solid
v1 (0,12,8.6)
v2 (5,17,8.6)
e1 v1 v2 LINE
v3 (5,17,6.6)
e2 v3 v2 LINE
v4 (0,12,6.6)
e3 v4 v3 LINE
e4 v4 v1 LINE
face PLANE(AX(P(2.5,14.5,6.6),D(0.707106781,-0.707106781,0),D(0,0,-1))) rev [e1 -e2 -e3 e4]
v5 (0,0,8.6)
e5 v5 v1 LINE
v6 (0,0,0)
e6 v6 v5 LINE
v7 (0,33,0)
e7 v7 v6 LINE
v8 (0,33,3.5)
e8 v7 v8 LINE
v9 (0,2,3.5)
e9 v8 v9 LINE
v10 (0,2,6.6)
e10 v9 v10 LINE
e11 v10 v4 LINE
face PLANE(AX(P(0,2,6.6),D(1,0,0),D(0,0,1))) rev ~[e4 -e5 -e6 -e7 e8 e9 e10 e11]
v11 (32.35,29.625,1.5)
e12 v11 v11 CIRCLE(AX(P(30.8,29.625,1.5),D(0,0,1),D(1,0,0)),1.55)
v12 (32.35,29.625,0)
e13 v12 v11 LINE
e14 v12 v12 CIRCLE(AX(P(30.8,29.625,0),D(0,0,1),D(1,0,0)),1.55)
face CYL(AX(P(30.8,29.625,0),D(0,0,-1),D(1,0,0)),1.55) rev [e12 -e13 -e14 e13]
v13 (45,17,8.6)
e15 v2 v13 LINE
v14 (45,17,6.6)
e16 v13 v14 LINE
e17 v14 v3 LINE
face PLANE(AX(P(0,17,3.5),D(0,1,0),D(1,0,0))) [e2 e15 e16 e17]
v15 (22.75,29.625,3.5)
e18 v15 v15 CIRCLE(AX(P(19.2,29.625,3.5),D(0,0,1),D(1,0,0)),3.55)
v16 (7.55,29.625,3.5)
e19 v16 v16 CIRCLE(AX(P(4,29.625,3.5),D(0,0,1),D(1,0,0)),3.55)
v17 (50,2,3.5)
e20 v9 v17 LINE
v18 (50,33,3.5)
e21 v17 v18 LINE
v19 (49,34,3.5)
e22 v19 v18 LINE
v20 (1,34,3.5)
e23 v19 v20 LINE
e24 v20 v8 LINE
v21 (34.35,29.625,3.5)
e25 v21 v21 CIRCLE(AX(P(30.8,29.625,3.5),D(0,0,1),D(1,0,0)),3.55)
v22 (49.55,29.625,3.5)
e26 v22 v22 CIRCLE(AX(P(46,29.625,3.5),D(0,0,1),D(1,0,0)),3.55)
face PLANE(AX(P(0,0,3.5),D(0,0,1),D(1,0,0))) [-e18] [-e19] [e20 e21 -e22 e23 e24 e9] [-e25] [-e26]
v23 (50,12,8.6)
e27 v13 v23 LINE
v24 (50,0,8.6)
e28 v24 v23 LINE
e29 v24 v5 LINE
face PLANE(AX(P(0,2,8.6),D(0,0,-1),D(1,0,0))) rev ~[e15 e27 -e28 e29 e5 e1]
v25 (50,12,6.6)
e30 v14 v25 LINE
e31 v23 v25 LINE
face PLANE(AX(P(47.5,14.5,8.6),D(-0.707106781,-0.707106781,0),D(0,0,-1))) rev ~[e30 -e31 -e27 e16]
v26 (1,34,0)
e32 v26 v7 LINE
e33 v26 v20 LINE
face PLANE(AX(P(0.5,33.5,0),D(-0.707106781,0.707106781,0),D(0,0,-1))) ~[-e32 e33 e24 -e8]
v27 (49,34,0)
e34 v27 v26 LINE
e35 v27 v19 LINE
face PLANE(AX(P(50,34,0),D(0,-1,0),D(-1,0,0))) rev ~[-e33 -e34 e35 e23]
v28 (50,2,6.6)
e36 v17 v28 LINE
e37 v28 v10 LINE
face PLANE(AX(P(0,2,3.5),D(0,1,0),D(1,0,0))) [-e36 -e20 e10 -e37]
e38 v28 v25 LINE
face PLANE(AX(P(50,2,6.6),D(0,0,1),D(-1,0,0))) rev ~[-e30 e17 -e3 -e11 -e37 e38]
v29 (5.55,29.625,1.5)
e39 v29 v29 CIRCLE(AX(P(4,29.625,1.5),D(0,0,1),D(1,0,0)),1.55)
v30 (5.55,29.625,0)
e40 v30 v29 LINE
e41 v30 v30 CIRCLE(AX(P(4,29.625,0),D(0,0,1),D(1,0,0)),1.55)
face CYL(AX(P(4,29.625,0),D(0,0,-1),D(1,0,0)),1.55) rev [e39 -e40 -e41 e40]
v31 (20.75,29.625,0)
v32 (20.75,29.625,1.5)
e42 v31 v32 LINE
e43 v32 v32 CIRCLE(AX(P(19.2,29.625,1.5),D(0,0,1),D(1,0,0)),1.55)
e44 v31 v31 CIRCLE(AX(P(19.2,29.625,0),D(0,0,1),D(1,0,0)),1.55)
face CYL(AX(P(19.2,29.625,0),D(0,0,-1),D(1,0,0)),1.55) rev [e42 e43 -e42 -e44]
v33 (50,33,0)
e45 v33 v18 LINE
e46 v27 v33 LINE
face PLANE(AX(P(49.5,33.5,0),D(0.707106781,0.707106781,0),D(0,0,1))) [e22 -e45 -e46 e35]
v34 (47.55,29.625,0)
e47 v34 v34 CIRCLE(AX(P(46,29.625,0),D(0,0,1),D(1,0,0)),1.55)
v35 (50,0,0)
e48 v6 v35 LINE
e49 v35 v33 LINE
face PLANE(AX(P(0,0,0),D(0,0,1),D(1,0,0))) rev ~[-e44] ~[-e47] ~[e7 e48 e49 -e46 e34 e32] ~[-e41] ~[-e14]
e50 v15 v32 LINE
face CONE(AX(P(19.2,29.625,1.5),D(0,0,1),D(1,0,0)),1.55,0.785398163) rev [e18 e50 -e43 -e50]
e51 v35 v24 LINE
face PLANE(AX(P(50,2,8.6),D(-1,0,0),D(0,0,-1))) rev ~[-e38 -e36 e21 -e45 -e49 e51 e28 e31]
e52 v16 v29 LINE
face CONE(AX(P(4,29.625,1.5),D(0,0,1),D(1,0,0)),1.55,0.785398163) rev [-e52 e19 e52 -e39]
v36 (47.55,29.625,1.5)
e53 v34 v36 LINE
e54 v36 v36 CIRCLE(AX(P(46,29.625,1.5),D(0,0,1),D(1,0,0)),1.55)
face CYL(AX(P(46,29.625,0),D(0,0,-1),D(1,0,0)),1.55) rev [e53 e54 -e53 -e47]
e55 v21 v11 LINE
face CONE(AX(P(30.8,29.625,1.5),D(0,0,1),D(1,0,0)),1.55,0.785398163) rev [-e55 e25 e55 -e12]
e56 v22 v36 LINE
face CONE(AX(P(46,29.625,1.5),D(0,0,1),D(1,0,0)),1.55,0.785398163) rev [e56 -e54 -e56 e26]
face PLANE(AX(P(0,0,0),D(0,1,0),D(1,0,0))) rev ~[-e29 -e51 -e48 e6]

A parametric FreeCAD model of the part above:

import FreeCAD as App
import Part
import Sketcher


def edges_at(feature, points):
    """Names of the edges that pass closest to the given points."""
    edges = feature.Shape.Edges
    near = lambda p: min(range(len(edges)), key=lambda i: edges[i].distToShape(Part.Vertex(*p))[0])
    return sorted({f"Edge{near(p) + 1}" for p in points})


def add_polygon(sketch, points):
    """Adds a closed chain of lines whose ends are joined by coincident constraints."""
    first, n = sketch.GeometryCount, len(points)
    for a, b in zip(points, points[1:] + points[:1]):
        sketch.addGeometry(Part.LineSegment(App.Vector(*a, 0), App.Vector(*b, 0)), False)
    for i in range(n):
        sketch.addConstraint(Sketcher.Constraint("Coincident", first + i, 2, first + (i + 1) % n, 1))

doc = App.newDocument("Part")
body = doc.addObject("PartDesign::Body", "Body")

# Sketch on XY plane
sketch1 = body.newObject("Sketcher::SketchObject", "Sketch")
sketch1.AttachmentSupport = (doc.getObject("XY_Plane"), [""])
sketch1.MapMode = "FlatFace"
add_polygon(sketch1, [(0, 34), (0, 0), (50, 0), (50, 34)])  # lines 0-3
sketch1.addGeometry(Part.Circle(App.Vector(4, 29.6, 0), App.Vector(0, 0, 1), 1.6), False)  # 4
sketch1.addGeometry(Part.Circle(App.Vector(19.2, 29.6, 0), App.Vector(0, 0, 1), 1.6), False)  # 5
sketch1.addGeometry(Part.Circle(App.Vector(30.8, 29.6, 0), App.Vector(0, 0, 1), 1.6), False)  # 6
sketch1.addGeometry(Part.Circle(App.Vector(46, 29.6, 0), App.Vector(0, 0, 1), 1.6), False)  # 7
sketch1.addConstraint([
    Sketcher.Constraint("Vertical", 0),
    Sketcher.Constraint("Horizontal", 1),
    Sketcher.Constraint("Vertical", 2),
    Sketcher.Constraint("Horizontal", 3),
    Sketcher.Constraint("Coincident", 0, 2, -1, 1),
    Sketcher.Constraint("Equal", 4, 5),
    Sketcher.Constraint("Equal", 5, 6),
    Sketcher.Constraint("Equal", 6, 7),
    Sketcher.Constraint("Horizontal", 4, 3, 5, 3),
    Sketcher.Constraint("Horizontal", 5, 3, 6, 3),
    Sketcher.Constraint("Horizontal", 6, 3, 7, 3),
    Sketcher.Constraint("Diameter", 4, 3.1),
    Sketcher.Constraint("DistanceX", 1, 1, 1, 2, 50.0),
    Sketcher.Constraint("DistanceY", 0, 2, 0, 1, 34.0),
    Sketcher.Constraint("DistanceX", -1, 1, 4, 3, 4.0),
    Sketcher.Constraint("DistanceX", 7, 3, 1, 2, 4.0),
    Sketcher.Constraint("DistanceX", 4, 3, 5, 3, 15.2),
    Sketcher.Constraint("DistanceX", 6, 3, 7, 3, 15.2),
    Sketcher.Constraint("DistanceY", 7, 3, 2, 2, 4.375),
])
pad1 = body.newObject("PartDesign::Pad", "Pad")
pad1.Profile = sketch1
pad1.Length = 3.5

# Sketch on XY plane
sketch2 = body.newObject("Sketcher::SketchObject", "Sketch001")
sketch2.AttachmentSupport = (doc.getObject("XY_Plane"), [""])
sketch2.MapMode = "FlatFace"
sketch2.AttachmentOffset = App.Placement(App.Vector(0, 0, 3.5), App.Rotation())
add_polygon(sketch2, [(50, 2), (0, 2), (0, 0), (50, 0)])  # lines 0-3
sketch2.addConstraint([
    Sketcher.Constraint("Horizontal", 0),
    Sketcher.Constraint("Vertical", 1),
    Sketcher.Constraint("Horizontal", 2),
    Sketcher.Constraint("Vertical", 3),
    Sketcher.Constraint("Coincident", 1, 2, -1, 1),
    Sketcher.Constraint("DistanceY", 1, 2, 1, 1, 2.0),
    Sketcher.Constraint("DistanceX", 0, 2, 0, 1, 50.0),
])
pad2 = body.newObject("PartDesign::Pad", "Pad001")
pad2.Profile = sketch2
pad2.Length = 5.1

# Sketch on XZ plane
sketch3 = body.newObject("Sketcher::SketchObject", "Sketch002")
sketch3.AttachmentSupport = (doc.getObject("XZ_Plane"), [""])
sketch3.MapMode = "FlatFace"
sketch3.AttachmentOffset = App.Placement(App.Vector(0, 0, -2), App.Rotation())
add_polygon(sketch3, [(0, 6.6), (0, 8.6), (50, 8.6), (50, 6.6)])  # lines 0-3
sketch3.addConstraint([
    Sketcher.Constraint("Vertical", 0),
    Sketcher.Constraint("Horizontal", 1),
    Sketcher.Constraint("Vertical", 2),
    Sketcher.Constraint("Horizontal", 3),
    Sketcher.Constraint("PointOnObject", 0, 2, -2),
    Sketcher.Constraint("DistanceX", 1, 1, 1, 2, 50.0),
    Sketcher.Constraint("DistanceY", 0, 1, 0, 2, 2.0),
    Sketcher.Constraint("DistanceY", -1, 1, 0, 2, 8.6),
])
pad3 = body.newObject("PartDesign::Pad", "Pad002")
pad3.Profile = sketch3
pad3.Length = 15
pad3.Reversed = True
doc.recompute()

chamfer = body.newObject("PartDesign::Chamfer", "Chamfer")
chamfer.Base = (pad3, edges_at(pad3, [(50, 17, 7.6), (0, 17, 7.6)]))
chamfer.Size = 5
doc.recompute()

chamfer2 = body.newObject("PartDesign::Chamfer", "Chamfer001")
chamfer2.Base = (chamfer, edges_at(chamfer, [
    (2.45, 29.625, 3.5),
    (17.65, 29.625, 3.5),
    (29.25, 29.625, 3.5),
    (44.45, 29.625, 3.5),
]))
chamfer2.Size = 2
doc.recompute()

chamfer3 = body.newObject("PartDesign::Chamfer", "Chamfer002")
chamfer3.Base = (chamfer2, edges_at(chamfer2, [(0, 34, 1.75), (50, 34, 1.75)]))
chamfer3.Size = 1

doc.recompute()
